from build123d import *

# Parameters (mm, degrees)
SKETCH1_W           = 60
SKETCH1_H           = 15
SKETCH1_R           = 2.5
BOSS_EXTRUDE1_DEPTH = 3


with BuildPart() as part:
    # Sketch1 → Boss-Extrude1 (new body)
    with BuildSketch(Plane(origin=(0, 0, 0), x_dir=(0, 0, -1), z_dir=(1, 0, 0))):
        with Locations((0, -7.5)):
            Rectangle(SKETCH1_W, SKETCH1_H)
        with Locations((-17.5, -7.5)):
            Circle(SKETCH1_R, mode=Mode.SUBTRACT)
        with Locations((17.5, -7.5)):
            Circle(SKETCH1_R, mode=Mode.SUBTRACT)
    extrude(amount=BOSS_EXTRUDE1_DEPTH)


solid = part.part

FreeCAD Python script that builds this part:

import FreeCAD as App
import Part
import Sketcher


def add_polygon(sketch, points):
    """Adds a closed chain of lines whose ends are joined by coincident constraints."""
    first, n = sketch.GeometryCount, len(points)
    for a, b in zip(points, points[1:] + points[:1]):
        sketch.addGeometry(Part.LineSegment(App.Vector(*a, 0), App.Vector(*b, 0)), False)
    for i in range(n):
        sketch.addConstraint(Sketcher.Constraint("Coincident", first + i, 2, first + (i + 1) % n, 1))

doc = App.newDocument("Part")
body = doc.addObject("PartDesign::Body", "Body")

sketch1 = body.newObject("Sketcher::SketchObject", "Sketch")
sketch1.AttachmentSupport = (doc.getObject("YZ_Plane"), [""])
sketch1.MapMode = "FlatFace"
add_polygon(sketch1, [(0, 30), (-15, 30), (-15, -30), (0, -30)])
sketch1.addGeometry(Part.Circle(App.Vector(-7.5, 17.5, 0), App.Vector(0, 0, 1), 2.5), False)
sketch1.addGeometry(Part.Circle(App.Vector(-7.5, -17.5, 0), App.Vector(0, 0, 1), 2.5), False)
sketch1.addConstraint([
    Sketcher.Constraint("Horizontal", 0),
    Sketcher.Constraint("Vertical", 1),
    Sketcher.Constraint("Horizontal", 2),
    Sketcher.Constraint("Vertical", 3),
    Sketcher.Constraint("Equal", 4, 5),
    Sketcher.Constraint("Symmetric", 2, 2, 3, 2, -1, 1),
    Sketcher.Constraint("Symmetric", 4, 3, 5, 3, -1),
    Sketcher.Constraint("Diameter", 4, 5.0),
    Sketcher.Constraint("DistanceX", 0, 2, 0, 1, 15.0),
    Sketcher.Constraint("DistanceY", 1, 2, 1, 1, 60.0),
    Sketcher.Constraint("DistanceY", 5, 3, 4, 3, 35.0),
    Sketcher.Constraint("DistanceX", 4, 3, -1, 1, 7.5),
])
pad1 = body.newObject("PartDesign::Pad", "Pad")
pad1.Profile = sketch1
pad1.Length = 3

doc.recompute()
